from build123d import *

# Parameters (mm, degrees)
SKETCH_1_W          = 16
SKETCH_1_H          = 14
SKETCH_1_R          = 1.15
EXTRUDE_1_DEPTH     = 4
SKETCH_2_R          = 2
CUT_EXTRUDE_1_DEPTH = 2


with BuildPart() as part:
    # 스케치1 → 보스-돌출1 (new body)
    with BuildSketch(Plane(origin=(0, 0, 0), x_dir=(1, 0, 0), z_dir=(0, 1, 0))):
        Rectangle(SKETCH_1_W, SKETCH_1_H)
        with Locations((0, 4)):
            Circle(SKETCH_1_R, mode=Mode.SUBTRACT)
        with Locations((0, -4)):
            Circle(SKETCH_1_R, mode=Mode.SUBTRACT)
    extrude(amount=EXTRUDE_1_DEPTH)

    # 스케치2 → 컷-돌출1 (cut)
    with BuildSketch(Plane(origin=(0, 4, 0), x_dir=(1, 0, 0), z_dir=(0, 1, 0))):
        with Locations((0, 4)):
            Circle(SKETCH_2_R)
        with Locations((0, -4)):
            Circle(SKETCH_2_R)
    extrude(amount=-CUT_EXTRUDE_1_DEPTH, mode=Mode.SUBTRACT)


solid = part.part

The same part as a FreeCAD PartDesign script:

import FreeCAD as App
import Part
import Sketcher

V = App.Vector
Q = App.Units.Quantity


def add_polygon(sketch, points):
    """Adds a closed chain of lines whose ends are joined by coincident constraints."""
    first, n = sketch.GeometryCount, len(points)
    for a, b in zip(points, points[1:] + points[:1]):
        sketch.addGeometry(Part.LineSegment(App.Vector(*a, 0), App.Vector(*b, 0)), False)
    for i in range(n):
        sketch.addConstraint(Sketcher.Constraint("Coincident", first + i, 2, first + (i + 1) % n, 1))

doc = App.newDocument("Part")
body = doc.addObject("PartDesign::Body", "Body")

# Sketch on XZ plane
sketch1 = body.newObject("Sketcher::SketchObject", "Sketch")
sketch1.AttachmentSupport = (doc.getObject("XZ_Plane"), [""])
sketch1.MapMode = "FlatFace"
add_polygon(sketch1, [(-8, -7), (-8, 7), (8, 7), (8, -7)])  # lines 0-3
sketch1.addGeometry(Part.Circle(V(0, 4, 0), V(0, 0, 1), 1.15), False)  # 4
sketch1.addGeometry(Part.Circle(V(0, -4, 0), V(0, 0, 1), 1.15), False)  # 5
sketch1.addConstraint(Sketcher.Constraint("Vertical", 0))
sketch1.addConstraint(Sketcher.Constraint("Horizontal", 1))
sketch1.addConstraint(Sketcher.Constraint("Vertical", 2))
sketch1.addConstraint(Sketcher.Constraint("Horizontal", 3))
sketch1.addConstraint(Sketcher.Constraint("Equal", 4, 5))
sketch1.addConstraint(Sketcher.Constraint("Symmetric", 4, 3, 5, 3, -1, 1))
sketch1.addConstraint(Sketcher.Constraint("Symmetric", 0, 2, 2, 2, -1, 1))
sketch1.addConstraint(Sketcher.Constraint("PointOnObject", 4, 3, -2))
sketch1.addConstraint(Sketcher.Constraint("Diameter", 4, Q("2.3 mm")))
sketch1.addConstraint(Sketcher.Constraint("DistanceX", 1, 1, 1, 2, Q("16 mm")))
sketch1.addConstraint(Sketcher.Constraint("DistanceY", 0, 1, 0, 2, Q("14 mm")))
sketch1.addConstraint(Sketcher.Constraint("DistanceY", -1, 1, 4, 3, Q("4 mm")))
pad1 = body.newObject("PartDesign::Pad", "Pad")
pad1.Profile = sketch1
pad1.Length = 4
pad1.Reversed = True

# Sketch on XZ plane
sketch2 = body.newObject("Sketcher::SketchObject", "Sketch001")
sketch2.AttachmentSupport = (doc.getObject("XZ_Plane"), [""])
sketch2.MapMode = "FlatFace"
sketch2.AttachmentOffset = App.Placement(V(0, 0, -4), App.Rotation())
sketch2.addGeometry(Part.Circle(V(0, -4, 0), V(0, 0, 1), 2), False)
sketch2.addGeometry(Part.Circle(V(0, 4, 0), V(0, 0, 1), 2), False)
sketch2.addConstraint(Sketcher.Constraint("Equal", 0, 1))
sketch2.addConstraint(Sketcher.Constraint("Symmetric", 0, 3, 1, 3, -1, 1))
sketch2.addConstraint(Sketcher.Constraint("PointOnObject", 0, 3, -2))
sketch2.addConstraint(Sketcher.Constraint("Diameter", 0, Q("4 mm")))
sketch2.addConstraint(Sketcher.Constraint("DistanceY", 0, 3, -1, 1, Q("4 mm")))
pocket1 = body.newObject("PartDesign::Pocket", "Pocket")
pocket1.Profile = sketch2
pocket1.Length = 2
pocket1.Reversed = True

doc.recompute()
